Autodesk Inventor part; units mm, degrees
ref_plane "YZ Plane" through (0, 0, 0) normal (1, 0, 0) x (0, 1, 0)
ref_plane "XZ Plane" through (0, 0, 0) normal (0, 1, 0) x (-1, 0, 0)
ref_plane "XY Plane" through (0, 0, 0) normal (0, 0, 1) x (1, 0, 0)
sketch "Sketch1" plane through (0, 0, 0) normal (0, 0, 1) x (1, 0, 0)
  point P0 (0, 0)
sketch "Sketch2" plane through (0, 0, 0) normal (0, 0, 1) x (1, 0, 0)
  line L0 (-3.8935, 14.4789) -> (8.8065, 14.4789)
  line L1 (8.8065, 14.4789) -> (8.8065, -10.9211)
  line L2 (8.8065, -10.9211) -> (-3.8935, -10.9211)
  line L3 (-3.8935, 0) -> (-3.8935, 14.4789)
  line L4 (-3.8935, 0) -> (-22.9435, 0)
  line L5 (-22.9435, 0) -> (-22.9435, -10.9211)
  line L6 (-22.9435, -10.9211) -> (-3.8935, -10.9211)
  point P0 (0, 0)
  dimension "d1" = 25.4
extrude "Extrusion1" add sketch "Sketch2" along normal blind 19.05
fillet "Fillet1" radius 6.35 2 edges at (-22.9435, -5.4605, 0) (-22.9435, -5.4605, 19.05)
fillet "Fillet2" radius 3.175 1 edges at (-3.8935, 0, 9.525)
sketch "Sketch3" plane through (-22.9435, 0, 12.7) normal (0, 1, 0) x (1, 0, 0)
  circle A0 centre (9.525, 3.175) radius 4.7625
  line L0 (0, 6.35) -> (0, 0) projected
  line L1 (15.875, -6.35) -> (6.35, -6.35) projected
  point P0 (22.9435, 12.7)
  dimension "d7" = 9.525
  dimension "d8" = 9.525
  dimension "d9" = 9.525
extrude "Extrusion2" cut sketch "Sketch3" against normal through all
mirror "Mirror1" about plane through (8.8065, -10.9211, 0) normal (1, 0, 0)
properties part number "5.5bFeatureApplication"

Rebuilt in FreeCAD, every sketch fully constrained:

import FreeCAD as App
import Part
import Sketcher

V = App.Vector
Q = App.Units.Quantity


def edges_at(feature, points):
    """Names of the edges that pass closest to the given points."""
    edges = feature.Shape.Edges
    near = lambda p: min(range(len(edges)), key=lambda i: edges[i].distToShape(Part.Vertex(*p))[0])
    return sorted({f"Edge{near(p) + 1}" for p in points})

doc = App.newDocument("Part")
body = doc.addObject("PartDesign::Body", "Body")

# Sketch on XY plane
sketch1 = doc.addObject("Sketcher::SketchObject", "Sketch")
body.addObject(sketch1)
sketch1.AttachmentSupport = (doc.XY_Plane, [""])
sketch1.MapMode = "FlatFace"
sketch1.addGeometry([
    Part.LineSegment(V(9, 14, 0), V(-4, 14, 0)),  # 0
    Part.LineSegment(V(-4, 14, 0), V(-4, 0, 0)),  # 1
    Part.LineSegment(V(-4, 0, 0), V(-23, 0, 0)),  # 2
    Part.LineSegment(V(-23, 0, 0), V(-23, -11, 0)),  # 3
    Part.LineSegment(V(-23, -11, 0), V(9, -11, 0)),  # 4
    Part.LineSegment(V(9, -11, 0), V(9, 14, 0)),  # 5
], False)
sketch1.addConstraint([
    Sketcher.Constraint("Coincident", 0, 2, 1, 1),
    Sketcher.Constraint("Coincident", 1, 2, 2, 1),
    Sketcher.Constraint("Coincident", 2, 2, 3, 1),
    Sketcher.Constraint("Coincident", 3, 2, 4, 1),
    Sketcher.Constraint("Coincident", 4, 2, 5, 1),
    Sketcher.Constraint("Coincident", 5, 2, 0, 1),
    Sketcher.Constraint("Horizontal", 0),
    Sketcher.Constraint("Vertical", 1),
    Sketcher.Constraint("Horizontal", 2),
    Sketcher.Constraint("Vertical", 3),
    Sketcher.Constraint("Horizontal", 4),
    Sketcher.Constraint("Vertical", 5),
    Sketcher.Constraint("PointOnObject", 1, 2, -1),
    Sketcher.Constraint("DistanceY", 5, 1, 5, 2, Q("1 in")),
    Sketcher.Constraint("DistanceX", 0, 2, 0, 1, Q("0.5 in")),
    Sketcher.Constraint("DistanceX", 2, 2, 2, 1, Q("0.75 in")),
    Sketcher.Constraint("DistanceY", 1, 2, 1, 1, 14.479),
    Sketcher.Constraint("DistanceX", 0, 2, -1, 1, 3.8935),
])
pad1 = doc.addObject("PartDesign::Pad", "Pad")
body.addObject(pad1)
pad1.Profile = sketch1
pad1.Length = Q("0.75 in")
doc.recompute()

fillet = doc.addObject("PartDesign::Fillet", "Fillet")
body.addObject(fillet)
fillet.Base = (pad1, edges_at(pad1, [(-22.944, -5.46, 0), (-22.944, -5.46, 19.05)]))
fillet.Radius = Q("0.25 in")
doc.recompute()

fillet2 = doc.addObject("PartDesign::Fillet", "Fillet001")
body.addObject(fillet2)
fillet2.Base = (fillet, edges_at(fillet, [(-3.893, 0, 9.525)]))
fillet2.Radius = Q("0.125 in")

# Sketch on XZ plane
sketch2 = doc.addObject("Sketcher::SketchObject", "Sketch001")
body.addObject(sketch2)
sketch2.AttachmentSupport = (doc.XZ_Plane, [""])
sketch2.MapMode = "FlatFace"
sketch2.addGeometry(Part.Circle(V(-13.4, 9.5, 0), V(0, 0, 1), 4.8), False)
sketch2.addConstraint([
    Sketcher.Constraint("Diameter", 0, Q("0.375 in")),
    Sketcher.Constraint("DistanceY", -1, 1, 0, 3, Q("0.375 in")),
    Sketcher.Constraint("DistanceX", 0, 3, -1, 1, 13.4185),
])
pocket1 = doc.addObject("PartDesign::Pocket", "Pocket")
body.addObject(pocket1)
pocket1.Profile = sketch2
pocket1.Type = "ThroughAll"
pocket1.Reversed = True
doc.recompute()

datumplane = doc.addObject("PartDesign::Plane", "DatumPlane")
body.addObject(datumplane)
datumplane.AttachmentSupport = (doc.YZ_Plane, [""])
datumplane.MapMode = "FlatFace"
datumplane.AttachmentOffset = App.Placement(V(0, 0, 8.8065), App.Rotation())
mirrored = doc.addObject("PartDesign::Mirrored", "Mirrored")
body.addObject(mirrored)
mirrored.TransformMode = "Transform body"
mirrored.MirrorPlane = (datumplane, [""])
body.Tip = mirrored

doc.recompute()
